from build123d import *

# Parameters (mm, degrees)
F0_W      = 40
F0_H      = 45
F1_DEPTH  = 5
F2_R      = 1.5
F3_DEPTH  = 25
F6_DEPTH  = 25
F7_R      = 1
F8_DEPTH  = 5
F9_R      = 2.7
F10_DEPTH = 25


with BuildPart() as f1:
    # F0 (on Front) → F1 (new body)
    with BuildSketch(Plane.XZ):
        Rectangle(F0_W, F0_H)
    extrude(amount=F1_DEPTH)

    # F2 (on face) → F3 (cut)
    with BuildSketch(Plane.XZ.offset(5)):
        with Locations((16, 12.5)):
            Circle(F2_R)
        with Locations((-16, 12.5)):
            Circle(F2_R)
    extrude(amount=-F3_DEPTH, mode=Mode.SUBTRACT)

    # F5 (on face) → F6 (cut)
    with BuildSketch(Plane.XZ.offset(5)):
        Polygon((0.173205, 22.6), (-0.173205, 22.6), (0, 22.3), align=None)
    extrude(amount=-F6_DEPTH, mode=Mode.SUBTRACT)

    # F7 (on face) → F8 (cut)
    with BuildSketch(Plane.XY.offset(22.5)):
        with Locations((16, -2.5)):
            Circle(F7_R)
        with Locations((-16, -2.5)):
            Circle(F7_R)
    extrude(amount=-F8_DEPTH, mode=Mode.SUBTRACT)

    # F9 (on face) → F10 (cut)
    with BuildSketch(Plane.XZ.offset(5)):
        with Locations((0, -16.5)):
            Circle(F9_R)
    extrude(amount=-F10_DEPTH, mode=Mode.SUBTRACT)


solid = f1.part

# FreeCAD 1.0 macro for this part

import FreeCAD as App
import Part
import Sketcher
from FreeCAD import Vector
Q = App.Units.Quantity


def add_polygon(sketch, points):
    """Adds a closed chain of lines whose ends are joined by coincident constraints."""
    first, n = sketch.GeometryCount, len(points)
    for a, b in zip(points, points[1:] + points[:1]):
        sketch.addGeometry(Part.LineSegment(App.Vector(*a, 0), App.Vector(*b, 0)), False)
    for i in range(n):
        sketch.addConstraint(Sketcher.Constraint("Coincident", first + i, 2, first + (i + 1) % n, 1))

doc = App.newDocument("Part")
body = doc.addObject("PartDesign::Body", "Body")

# Sketch on XZ plane
sketch1 = doc.addObject("Sketcher::SketchObject", "Sketch")
body.addObject(sketch1)
sketch1.AttachmentSupport = (doc.XZ_Plane, [""])
sketch1.MapMode = "FlatFace"
add_polygon(sketch1, [(-20, 22.5), (-20, -22.5), (20, -22.5), (20, 22.5)])  # lines 0-3
sketch1.addConstraint([
    Sketcher.Constraint("Vertical", 0),
    Sketcher.Constraint("Horizontal", 1),
    Sketcher.Constraint("Vertical", 2),
    Sketcher.Constraint("Horizontal", 3),
    Sketcher.Constraint("Symmetric", 0, 2, 2, 2, -1, 1),
    Sketcher.Constraint("DistanceX", 1, 1, 1, 2, 40.0),
    Sketcher.Constraint("DistanceY", 0, 2, 0, 1, 45.0),
])
pad1 = doc.addObject("PartDesign::Pad", "Pad")
body.addObject(pad1)
pad1.Profile = sketch1
pad1.Length = 5

# Sketch on XZ plane
sketch2 = doc.addObject("Sketcher::SketchObject", "Sketch001")
body.addObject(sketch2)
sketch2.AttachmentSupport = (doc.XZ_Plane, [""])
sketch2.MapMode = "FlatFace"
sketch2.AttachmentOffset = App.Placement(Vector(0, 0, 5), App.Rotation())
sketch2.addGeometry([
    Part.Circle(Vector(16, 12.5, 0), Vector(0, 0, 1), 1.5),
    Part.Circle(Vector(-16, 12.5, 0), Vector(0, 0, 1), 1.5),
], False)
sketch2.addConstraint([
    Sketcher.Constraint("Equal", 0, 1),
    Sketcher.Constraint("Symmetric", 0, 3, 1, 3, -2),
    Sketcher.Constraint("Diameter", 0, 3.0),
    Sketcher.Constraint("DistanceX", -1, 1, 0, 3, 16.0),
    Sketcher.Constraint("DistanceY", -1, 1, 0, 3, 12.5),
])
pocket1 = doc.addObject("PartDesign::Pocket", "Pocket")
body.addObject(pocket1)
pocket1.Profile = sketch2
pocket1.Length = 25

# Sketch on XZ plane
sketch3 = doc.addObject("Sketcher::SketchObject", "Sketch002")
body.addObject(sketch3)
sketch3.AttachmentSupport = (doc.XZ_Plane, [""])
sketch3.MapMode = "FlatFace"
sketch3.AttachmentOffset = App.Placement(Vector(0, 0, 5), App.Rotation())
add_polygon(sketch3, [(0.173205, 22.6), (-0.173205, 22.6), (0, 22.3)])  # lines 0-2
sketch3.addConstraint([
    Sketcher.Constraint("Horizontal", 0),
    Sketcher.Constraint("PointOnObject", 1, 2, -2),
    Sketcher.Constraint("Equal", 1, 2),
    Sketcher.Constraint("Angle", 1, Q("-60.000012 deg")),
    Sketcher.Constraint("DistanceY", -1, 1, 0, 2, 22.6),
    Sketcher.Constraint("DistanceY", -1, 1, 1, 2, 22.3),
])
pocket2 = doc.addObject("PartDesign::Pocket", "Pocket001")
body.addObject(pocket2)
pocket2.Profile = sketch3
pocket2.Length = 25

# Sketch on XY plane
sketch4 = doc.addObject("Sketcher::SketchObject", "Sketch003")
body.addObject(sketch4)
sketch4.AttachmentSupport = (doc.XY_Plane, [""])
sketch4.MapMode = "FlatFace"
sketch4.AttachmentOffset = App.Placement(Vector(0, 0, 22.5), App.Rotation())
sketch4.addGeometry([
    Part.Circle(Vector(16, -2.5, 0), Vector(0, 0, 1), 1),
    Part.Circle(Vector(-16, -2.5, 0), Vector(0, 0, 1), 1),
], False)
sketch4.addConstraint([
    Sketcher.Constraint("Equal", 0, 1),
    Sketcher.Constraint("Symmetric", 0, 3, 1, 3, -2),
    Sketcher.Constraint("Diameter", 0, 2.0),
    Sketcher.Constraint("DistanceX", -1, 1, 0, 3, 16.0),
    Sketcher.Constraint("DistanceY", 0, 3, -1, 1, 2.5),
])
pocket3 = doc.addObject("PartDesign::Pocket", "Pocket002")
body.addObject(pocket3)
pocket3.Profile = sketch4
pocket3.Length = 5

# Sketch on XZ plane
sketch5 = doc.addObject("Sketcher::SketchObject", "Sketch004")
body.addObject(sketch5)
sketch5.AttachmentSupport = (doc.XZ_Plane, [""])
sketch5.MapMode = "FlatFace"
sketch5.AttachmentOffset = App.Placement(Vector(0, 0, 5), App.Rotation())
sketch5.addGeometry(Part.Circle(Vector(0, -16.5, 0), Vector(0, 0, 1), 2.7), False)
sketch5.addConstraint([
    Sketcher.Constraint("PointOnObject", 0, 3, -2),
    Sketcher.Constraint("Diameter", 0, 5.4),
    Sketcher.Constraint("DistanceY", 0, 3, -1, 1, 16.5),
])
pocket4 = doc.addObject("PartDesign::Pocket", "Pocket003")
body.addObject(pocket4)
pocket4.Profile = sketch5
pocket4.Length = 25

doc.recompute()
